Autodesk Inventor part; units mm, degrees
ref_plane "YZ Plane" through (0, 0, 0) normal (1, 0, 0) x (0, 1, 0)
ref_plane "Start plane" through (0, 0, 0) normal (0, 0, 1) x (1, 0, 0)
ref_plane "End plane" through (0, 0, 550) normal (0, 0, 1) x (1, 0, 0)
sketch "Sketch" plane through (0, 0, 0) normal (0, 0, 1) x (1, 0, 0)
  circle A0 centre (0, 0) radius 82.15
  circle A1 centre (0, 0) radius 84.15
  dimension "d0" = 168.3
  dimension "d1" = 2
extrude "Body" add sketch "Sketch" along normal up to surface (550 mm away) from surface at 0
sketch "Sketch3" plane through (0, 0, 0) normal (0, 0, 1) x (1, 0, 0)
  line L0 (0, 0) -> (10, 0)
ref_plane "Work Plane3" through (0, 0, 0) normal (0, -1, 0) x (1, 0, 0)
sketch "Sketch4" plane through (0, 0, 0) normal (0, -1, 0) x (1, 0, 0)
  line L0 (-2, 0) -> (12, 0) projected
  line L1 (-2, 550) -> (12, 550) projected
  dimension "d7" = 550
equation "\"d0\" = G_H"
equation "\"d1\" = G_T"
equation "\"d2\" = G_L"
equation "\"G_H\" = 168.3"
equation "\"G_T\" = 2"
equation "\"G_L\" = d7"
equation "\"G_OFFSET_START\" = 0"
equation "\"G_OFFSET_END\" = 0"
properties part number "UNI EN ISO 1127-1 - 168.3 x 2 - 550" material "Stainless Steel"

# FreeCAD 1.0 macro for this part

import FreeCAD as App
import Part
import Sketcher

V = App.Vector

doc = App.newDocument("Part")
body = doc.addObject("PartDesign::Body", "Body")

sketch1 = body.newObject("Sketcher::SketchObject", "Sketch")
sketch1.AttachmentSupport = (doc.getObject("XY_Plane"), [""])
sketch1.MapMode = "FlatFace"
sketch1.addGeometry(Part.Circle(V(0, 0, 0), V(0, 0, 1), 84), False)
sketch1.addGeometry(Part.Circle(V(0, 0, 0), V(0, 0, 1), 82), False)
sketch1.addConstraint(Sketcher.Constraint("Coincident", 0, 3, -1, 1))
sketch1.addConstraint(Sketcher.Constraint("Coincident", 1, 3, -1, 1))
sketch1.addConstraint(Sketcher.Constraint("Diameter", 0, 168.3))
sketch1.addConstraint(Sketcher.Constraint("Diameter", 1, 164.3))
pad1 = body.newObject("PartDesign::Pad", "Pad")
pad1.Profile = sketch1
pad1.Length = 550

doc.recompute()
